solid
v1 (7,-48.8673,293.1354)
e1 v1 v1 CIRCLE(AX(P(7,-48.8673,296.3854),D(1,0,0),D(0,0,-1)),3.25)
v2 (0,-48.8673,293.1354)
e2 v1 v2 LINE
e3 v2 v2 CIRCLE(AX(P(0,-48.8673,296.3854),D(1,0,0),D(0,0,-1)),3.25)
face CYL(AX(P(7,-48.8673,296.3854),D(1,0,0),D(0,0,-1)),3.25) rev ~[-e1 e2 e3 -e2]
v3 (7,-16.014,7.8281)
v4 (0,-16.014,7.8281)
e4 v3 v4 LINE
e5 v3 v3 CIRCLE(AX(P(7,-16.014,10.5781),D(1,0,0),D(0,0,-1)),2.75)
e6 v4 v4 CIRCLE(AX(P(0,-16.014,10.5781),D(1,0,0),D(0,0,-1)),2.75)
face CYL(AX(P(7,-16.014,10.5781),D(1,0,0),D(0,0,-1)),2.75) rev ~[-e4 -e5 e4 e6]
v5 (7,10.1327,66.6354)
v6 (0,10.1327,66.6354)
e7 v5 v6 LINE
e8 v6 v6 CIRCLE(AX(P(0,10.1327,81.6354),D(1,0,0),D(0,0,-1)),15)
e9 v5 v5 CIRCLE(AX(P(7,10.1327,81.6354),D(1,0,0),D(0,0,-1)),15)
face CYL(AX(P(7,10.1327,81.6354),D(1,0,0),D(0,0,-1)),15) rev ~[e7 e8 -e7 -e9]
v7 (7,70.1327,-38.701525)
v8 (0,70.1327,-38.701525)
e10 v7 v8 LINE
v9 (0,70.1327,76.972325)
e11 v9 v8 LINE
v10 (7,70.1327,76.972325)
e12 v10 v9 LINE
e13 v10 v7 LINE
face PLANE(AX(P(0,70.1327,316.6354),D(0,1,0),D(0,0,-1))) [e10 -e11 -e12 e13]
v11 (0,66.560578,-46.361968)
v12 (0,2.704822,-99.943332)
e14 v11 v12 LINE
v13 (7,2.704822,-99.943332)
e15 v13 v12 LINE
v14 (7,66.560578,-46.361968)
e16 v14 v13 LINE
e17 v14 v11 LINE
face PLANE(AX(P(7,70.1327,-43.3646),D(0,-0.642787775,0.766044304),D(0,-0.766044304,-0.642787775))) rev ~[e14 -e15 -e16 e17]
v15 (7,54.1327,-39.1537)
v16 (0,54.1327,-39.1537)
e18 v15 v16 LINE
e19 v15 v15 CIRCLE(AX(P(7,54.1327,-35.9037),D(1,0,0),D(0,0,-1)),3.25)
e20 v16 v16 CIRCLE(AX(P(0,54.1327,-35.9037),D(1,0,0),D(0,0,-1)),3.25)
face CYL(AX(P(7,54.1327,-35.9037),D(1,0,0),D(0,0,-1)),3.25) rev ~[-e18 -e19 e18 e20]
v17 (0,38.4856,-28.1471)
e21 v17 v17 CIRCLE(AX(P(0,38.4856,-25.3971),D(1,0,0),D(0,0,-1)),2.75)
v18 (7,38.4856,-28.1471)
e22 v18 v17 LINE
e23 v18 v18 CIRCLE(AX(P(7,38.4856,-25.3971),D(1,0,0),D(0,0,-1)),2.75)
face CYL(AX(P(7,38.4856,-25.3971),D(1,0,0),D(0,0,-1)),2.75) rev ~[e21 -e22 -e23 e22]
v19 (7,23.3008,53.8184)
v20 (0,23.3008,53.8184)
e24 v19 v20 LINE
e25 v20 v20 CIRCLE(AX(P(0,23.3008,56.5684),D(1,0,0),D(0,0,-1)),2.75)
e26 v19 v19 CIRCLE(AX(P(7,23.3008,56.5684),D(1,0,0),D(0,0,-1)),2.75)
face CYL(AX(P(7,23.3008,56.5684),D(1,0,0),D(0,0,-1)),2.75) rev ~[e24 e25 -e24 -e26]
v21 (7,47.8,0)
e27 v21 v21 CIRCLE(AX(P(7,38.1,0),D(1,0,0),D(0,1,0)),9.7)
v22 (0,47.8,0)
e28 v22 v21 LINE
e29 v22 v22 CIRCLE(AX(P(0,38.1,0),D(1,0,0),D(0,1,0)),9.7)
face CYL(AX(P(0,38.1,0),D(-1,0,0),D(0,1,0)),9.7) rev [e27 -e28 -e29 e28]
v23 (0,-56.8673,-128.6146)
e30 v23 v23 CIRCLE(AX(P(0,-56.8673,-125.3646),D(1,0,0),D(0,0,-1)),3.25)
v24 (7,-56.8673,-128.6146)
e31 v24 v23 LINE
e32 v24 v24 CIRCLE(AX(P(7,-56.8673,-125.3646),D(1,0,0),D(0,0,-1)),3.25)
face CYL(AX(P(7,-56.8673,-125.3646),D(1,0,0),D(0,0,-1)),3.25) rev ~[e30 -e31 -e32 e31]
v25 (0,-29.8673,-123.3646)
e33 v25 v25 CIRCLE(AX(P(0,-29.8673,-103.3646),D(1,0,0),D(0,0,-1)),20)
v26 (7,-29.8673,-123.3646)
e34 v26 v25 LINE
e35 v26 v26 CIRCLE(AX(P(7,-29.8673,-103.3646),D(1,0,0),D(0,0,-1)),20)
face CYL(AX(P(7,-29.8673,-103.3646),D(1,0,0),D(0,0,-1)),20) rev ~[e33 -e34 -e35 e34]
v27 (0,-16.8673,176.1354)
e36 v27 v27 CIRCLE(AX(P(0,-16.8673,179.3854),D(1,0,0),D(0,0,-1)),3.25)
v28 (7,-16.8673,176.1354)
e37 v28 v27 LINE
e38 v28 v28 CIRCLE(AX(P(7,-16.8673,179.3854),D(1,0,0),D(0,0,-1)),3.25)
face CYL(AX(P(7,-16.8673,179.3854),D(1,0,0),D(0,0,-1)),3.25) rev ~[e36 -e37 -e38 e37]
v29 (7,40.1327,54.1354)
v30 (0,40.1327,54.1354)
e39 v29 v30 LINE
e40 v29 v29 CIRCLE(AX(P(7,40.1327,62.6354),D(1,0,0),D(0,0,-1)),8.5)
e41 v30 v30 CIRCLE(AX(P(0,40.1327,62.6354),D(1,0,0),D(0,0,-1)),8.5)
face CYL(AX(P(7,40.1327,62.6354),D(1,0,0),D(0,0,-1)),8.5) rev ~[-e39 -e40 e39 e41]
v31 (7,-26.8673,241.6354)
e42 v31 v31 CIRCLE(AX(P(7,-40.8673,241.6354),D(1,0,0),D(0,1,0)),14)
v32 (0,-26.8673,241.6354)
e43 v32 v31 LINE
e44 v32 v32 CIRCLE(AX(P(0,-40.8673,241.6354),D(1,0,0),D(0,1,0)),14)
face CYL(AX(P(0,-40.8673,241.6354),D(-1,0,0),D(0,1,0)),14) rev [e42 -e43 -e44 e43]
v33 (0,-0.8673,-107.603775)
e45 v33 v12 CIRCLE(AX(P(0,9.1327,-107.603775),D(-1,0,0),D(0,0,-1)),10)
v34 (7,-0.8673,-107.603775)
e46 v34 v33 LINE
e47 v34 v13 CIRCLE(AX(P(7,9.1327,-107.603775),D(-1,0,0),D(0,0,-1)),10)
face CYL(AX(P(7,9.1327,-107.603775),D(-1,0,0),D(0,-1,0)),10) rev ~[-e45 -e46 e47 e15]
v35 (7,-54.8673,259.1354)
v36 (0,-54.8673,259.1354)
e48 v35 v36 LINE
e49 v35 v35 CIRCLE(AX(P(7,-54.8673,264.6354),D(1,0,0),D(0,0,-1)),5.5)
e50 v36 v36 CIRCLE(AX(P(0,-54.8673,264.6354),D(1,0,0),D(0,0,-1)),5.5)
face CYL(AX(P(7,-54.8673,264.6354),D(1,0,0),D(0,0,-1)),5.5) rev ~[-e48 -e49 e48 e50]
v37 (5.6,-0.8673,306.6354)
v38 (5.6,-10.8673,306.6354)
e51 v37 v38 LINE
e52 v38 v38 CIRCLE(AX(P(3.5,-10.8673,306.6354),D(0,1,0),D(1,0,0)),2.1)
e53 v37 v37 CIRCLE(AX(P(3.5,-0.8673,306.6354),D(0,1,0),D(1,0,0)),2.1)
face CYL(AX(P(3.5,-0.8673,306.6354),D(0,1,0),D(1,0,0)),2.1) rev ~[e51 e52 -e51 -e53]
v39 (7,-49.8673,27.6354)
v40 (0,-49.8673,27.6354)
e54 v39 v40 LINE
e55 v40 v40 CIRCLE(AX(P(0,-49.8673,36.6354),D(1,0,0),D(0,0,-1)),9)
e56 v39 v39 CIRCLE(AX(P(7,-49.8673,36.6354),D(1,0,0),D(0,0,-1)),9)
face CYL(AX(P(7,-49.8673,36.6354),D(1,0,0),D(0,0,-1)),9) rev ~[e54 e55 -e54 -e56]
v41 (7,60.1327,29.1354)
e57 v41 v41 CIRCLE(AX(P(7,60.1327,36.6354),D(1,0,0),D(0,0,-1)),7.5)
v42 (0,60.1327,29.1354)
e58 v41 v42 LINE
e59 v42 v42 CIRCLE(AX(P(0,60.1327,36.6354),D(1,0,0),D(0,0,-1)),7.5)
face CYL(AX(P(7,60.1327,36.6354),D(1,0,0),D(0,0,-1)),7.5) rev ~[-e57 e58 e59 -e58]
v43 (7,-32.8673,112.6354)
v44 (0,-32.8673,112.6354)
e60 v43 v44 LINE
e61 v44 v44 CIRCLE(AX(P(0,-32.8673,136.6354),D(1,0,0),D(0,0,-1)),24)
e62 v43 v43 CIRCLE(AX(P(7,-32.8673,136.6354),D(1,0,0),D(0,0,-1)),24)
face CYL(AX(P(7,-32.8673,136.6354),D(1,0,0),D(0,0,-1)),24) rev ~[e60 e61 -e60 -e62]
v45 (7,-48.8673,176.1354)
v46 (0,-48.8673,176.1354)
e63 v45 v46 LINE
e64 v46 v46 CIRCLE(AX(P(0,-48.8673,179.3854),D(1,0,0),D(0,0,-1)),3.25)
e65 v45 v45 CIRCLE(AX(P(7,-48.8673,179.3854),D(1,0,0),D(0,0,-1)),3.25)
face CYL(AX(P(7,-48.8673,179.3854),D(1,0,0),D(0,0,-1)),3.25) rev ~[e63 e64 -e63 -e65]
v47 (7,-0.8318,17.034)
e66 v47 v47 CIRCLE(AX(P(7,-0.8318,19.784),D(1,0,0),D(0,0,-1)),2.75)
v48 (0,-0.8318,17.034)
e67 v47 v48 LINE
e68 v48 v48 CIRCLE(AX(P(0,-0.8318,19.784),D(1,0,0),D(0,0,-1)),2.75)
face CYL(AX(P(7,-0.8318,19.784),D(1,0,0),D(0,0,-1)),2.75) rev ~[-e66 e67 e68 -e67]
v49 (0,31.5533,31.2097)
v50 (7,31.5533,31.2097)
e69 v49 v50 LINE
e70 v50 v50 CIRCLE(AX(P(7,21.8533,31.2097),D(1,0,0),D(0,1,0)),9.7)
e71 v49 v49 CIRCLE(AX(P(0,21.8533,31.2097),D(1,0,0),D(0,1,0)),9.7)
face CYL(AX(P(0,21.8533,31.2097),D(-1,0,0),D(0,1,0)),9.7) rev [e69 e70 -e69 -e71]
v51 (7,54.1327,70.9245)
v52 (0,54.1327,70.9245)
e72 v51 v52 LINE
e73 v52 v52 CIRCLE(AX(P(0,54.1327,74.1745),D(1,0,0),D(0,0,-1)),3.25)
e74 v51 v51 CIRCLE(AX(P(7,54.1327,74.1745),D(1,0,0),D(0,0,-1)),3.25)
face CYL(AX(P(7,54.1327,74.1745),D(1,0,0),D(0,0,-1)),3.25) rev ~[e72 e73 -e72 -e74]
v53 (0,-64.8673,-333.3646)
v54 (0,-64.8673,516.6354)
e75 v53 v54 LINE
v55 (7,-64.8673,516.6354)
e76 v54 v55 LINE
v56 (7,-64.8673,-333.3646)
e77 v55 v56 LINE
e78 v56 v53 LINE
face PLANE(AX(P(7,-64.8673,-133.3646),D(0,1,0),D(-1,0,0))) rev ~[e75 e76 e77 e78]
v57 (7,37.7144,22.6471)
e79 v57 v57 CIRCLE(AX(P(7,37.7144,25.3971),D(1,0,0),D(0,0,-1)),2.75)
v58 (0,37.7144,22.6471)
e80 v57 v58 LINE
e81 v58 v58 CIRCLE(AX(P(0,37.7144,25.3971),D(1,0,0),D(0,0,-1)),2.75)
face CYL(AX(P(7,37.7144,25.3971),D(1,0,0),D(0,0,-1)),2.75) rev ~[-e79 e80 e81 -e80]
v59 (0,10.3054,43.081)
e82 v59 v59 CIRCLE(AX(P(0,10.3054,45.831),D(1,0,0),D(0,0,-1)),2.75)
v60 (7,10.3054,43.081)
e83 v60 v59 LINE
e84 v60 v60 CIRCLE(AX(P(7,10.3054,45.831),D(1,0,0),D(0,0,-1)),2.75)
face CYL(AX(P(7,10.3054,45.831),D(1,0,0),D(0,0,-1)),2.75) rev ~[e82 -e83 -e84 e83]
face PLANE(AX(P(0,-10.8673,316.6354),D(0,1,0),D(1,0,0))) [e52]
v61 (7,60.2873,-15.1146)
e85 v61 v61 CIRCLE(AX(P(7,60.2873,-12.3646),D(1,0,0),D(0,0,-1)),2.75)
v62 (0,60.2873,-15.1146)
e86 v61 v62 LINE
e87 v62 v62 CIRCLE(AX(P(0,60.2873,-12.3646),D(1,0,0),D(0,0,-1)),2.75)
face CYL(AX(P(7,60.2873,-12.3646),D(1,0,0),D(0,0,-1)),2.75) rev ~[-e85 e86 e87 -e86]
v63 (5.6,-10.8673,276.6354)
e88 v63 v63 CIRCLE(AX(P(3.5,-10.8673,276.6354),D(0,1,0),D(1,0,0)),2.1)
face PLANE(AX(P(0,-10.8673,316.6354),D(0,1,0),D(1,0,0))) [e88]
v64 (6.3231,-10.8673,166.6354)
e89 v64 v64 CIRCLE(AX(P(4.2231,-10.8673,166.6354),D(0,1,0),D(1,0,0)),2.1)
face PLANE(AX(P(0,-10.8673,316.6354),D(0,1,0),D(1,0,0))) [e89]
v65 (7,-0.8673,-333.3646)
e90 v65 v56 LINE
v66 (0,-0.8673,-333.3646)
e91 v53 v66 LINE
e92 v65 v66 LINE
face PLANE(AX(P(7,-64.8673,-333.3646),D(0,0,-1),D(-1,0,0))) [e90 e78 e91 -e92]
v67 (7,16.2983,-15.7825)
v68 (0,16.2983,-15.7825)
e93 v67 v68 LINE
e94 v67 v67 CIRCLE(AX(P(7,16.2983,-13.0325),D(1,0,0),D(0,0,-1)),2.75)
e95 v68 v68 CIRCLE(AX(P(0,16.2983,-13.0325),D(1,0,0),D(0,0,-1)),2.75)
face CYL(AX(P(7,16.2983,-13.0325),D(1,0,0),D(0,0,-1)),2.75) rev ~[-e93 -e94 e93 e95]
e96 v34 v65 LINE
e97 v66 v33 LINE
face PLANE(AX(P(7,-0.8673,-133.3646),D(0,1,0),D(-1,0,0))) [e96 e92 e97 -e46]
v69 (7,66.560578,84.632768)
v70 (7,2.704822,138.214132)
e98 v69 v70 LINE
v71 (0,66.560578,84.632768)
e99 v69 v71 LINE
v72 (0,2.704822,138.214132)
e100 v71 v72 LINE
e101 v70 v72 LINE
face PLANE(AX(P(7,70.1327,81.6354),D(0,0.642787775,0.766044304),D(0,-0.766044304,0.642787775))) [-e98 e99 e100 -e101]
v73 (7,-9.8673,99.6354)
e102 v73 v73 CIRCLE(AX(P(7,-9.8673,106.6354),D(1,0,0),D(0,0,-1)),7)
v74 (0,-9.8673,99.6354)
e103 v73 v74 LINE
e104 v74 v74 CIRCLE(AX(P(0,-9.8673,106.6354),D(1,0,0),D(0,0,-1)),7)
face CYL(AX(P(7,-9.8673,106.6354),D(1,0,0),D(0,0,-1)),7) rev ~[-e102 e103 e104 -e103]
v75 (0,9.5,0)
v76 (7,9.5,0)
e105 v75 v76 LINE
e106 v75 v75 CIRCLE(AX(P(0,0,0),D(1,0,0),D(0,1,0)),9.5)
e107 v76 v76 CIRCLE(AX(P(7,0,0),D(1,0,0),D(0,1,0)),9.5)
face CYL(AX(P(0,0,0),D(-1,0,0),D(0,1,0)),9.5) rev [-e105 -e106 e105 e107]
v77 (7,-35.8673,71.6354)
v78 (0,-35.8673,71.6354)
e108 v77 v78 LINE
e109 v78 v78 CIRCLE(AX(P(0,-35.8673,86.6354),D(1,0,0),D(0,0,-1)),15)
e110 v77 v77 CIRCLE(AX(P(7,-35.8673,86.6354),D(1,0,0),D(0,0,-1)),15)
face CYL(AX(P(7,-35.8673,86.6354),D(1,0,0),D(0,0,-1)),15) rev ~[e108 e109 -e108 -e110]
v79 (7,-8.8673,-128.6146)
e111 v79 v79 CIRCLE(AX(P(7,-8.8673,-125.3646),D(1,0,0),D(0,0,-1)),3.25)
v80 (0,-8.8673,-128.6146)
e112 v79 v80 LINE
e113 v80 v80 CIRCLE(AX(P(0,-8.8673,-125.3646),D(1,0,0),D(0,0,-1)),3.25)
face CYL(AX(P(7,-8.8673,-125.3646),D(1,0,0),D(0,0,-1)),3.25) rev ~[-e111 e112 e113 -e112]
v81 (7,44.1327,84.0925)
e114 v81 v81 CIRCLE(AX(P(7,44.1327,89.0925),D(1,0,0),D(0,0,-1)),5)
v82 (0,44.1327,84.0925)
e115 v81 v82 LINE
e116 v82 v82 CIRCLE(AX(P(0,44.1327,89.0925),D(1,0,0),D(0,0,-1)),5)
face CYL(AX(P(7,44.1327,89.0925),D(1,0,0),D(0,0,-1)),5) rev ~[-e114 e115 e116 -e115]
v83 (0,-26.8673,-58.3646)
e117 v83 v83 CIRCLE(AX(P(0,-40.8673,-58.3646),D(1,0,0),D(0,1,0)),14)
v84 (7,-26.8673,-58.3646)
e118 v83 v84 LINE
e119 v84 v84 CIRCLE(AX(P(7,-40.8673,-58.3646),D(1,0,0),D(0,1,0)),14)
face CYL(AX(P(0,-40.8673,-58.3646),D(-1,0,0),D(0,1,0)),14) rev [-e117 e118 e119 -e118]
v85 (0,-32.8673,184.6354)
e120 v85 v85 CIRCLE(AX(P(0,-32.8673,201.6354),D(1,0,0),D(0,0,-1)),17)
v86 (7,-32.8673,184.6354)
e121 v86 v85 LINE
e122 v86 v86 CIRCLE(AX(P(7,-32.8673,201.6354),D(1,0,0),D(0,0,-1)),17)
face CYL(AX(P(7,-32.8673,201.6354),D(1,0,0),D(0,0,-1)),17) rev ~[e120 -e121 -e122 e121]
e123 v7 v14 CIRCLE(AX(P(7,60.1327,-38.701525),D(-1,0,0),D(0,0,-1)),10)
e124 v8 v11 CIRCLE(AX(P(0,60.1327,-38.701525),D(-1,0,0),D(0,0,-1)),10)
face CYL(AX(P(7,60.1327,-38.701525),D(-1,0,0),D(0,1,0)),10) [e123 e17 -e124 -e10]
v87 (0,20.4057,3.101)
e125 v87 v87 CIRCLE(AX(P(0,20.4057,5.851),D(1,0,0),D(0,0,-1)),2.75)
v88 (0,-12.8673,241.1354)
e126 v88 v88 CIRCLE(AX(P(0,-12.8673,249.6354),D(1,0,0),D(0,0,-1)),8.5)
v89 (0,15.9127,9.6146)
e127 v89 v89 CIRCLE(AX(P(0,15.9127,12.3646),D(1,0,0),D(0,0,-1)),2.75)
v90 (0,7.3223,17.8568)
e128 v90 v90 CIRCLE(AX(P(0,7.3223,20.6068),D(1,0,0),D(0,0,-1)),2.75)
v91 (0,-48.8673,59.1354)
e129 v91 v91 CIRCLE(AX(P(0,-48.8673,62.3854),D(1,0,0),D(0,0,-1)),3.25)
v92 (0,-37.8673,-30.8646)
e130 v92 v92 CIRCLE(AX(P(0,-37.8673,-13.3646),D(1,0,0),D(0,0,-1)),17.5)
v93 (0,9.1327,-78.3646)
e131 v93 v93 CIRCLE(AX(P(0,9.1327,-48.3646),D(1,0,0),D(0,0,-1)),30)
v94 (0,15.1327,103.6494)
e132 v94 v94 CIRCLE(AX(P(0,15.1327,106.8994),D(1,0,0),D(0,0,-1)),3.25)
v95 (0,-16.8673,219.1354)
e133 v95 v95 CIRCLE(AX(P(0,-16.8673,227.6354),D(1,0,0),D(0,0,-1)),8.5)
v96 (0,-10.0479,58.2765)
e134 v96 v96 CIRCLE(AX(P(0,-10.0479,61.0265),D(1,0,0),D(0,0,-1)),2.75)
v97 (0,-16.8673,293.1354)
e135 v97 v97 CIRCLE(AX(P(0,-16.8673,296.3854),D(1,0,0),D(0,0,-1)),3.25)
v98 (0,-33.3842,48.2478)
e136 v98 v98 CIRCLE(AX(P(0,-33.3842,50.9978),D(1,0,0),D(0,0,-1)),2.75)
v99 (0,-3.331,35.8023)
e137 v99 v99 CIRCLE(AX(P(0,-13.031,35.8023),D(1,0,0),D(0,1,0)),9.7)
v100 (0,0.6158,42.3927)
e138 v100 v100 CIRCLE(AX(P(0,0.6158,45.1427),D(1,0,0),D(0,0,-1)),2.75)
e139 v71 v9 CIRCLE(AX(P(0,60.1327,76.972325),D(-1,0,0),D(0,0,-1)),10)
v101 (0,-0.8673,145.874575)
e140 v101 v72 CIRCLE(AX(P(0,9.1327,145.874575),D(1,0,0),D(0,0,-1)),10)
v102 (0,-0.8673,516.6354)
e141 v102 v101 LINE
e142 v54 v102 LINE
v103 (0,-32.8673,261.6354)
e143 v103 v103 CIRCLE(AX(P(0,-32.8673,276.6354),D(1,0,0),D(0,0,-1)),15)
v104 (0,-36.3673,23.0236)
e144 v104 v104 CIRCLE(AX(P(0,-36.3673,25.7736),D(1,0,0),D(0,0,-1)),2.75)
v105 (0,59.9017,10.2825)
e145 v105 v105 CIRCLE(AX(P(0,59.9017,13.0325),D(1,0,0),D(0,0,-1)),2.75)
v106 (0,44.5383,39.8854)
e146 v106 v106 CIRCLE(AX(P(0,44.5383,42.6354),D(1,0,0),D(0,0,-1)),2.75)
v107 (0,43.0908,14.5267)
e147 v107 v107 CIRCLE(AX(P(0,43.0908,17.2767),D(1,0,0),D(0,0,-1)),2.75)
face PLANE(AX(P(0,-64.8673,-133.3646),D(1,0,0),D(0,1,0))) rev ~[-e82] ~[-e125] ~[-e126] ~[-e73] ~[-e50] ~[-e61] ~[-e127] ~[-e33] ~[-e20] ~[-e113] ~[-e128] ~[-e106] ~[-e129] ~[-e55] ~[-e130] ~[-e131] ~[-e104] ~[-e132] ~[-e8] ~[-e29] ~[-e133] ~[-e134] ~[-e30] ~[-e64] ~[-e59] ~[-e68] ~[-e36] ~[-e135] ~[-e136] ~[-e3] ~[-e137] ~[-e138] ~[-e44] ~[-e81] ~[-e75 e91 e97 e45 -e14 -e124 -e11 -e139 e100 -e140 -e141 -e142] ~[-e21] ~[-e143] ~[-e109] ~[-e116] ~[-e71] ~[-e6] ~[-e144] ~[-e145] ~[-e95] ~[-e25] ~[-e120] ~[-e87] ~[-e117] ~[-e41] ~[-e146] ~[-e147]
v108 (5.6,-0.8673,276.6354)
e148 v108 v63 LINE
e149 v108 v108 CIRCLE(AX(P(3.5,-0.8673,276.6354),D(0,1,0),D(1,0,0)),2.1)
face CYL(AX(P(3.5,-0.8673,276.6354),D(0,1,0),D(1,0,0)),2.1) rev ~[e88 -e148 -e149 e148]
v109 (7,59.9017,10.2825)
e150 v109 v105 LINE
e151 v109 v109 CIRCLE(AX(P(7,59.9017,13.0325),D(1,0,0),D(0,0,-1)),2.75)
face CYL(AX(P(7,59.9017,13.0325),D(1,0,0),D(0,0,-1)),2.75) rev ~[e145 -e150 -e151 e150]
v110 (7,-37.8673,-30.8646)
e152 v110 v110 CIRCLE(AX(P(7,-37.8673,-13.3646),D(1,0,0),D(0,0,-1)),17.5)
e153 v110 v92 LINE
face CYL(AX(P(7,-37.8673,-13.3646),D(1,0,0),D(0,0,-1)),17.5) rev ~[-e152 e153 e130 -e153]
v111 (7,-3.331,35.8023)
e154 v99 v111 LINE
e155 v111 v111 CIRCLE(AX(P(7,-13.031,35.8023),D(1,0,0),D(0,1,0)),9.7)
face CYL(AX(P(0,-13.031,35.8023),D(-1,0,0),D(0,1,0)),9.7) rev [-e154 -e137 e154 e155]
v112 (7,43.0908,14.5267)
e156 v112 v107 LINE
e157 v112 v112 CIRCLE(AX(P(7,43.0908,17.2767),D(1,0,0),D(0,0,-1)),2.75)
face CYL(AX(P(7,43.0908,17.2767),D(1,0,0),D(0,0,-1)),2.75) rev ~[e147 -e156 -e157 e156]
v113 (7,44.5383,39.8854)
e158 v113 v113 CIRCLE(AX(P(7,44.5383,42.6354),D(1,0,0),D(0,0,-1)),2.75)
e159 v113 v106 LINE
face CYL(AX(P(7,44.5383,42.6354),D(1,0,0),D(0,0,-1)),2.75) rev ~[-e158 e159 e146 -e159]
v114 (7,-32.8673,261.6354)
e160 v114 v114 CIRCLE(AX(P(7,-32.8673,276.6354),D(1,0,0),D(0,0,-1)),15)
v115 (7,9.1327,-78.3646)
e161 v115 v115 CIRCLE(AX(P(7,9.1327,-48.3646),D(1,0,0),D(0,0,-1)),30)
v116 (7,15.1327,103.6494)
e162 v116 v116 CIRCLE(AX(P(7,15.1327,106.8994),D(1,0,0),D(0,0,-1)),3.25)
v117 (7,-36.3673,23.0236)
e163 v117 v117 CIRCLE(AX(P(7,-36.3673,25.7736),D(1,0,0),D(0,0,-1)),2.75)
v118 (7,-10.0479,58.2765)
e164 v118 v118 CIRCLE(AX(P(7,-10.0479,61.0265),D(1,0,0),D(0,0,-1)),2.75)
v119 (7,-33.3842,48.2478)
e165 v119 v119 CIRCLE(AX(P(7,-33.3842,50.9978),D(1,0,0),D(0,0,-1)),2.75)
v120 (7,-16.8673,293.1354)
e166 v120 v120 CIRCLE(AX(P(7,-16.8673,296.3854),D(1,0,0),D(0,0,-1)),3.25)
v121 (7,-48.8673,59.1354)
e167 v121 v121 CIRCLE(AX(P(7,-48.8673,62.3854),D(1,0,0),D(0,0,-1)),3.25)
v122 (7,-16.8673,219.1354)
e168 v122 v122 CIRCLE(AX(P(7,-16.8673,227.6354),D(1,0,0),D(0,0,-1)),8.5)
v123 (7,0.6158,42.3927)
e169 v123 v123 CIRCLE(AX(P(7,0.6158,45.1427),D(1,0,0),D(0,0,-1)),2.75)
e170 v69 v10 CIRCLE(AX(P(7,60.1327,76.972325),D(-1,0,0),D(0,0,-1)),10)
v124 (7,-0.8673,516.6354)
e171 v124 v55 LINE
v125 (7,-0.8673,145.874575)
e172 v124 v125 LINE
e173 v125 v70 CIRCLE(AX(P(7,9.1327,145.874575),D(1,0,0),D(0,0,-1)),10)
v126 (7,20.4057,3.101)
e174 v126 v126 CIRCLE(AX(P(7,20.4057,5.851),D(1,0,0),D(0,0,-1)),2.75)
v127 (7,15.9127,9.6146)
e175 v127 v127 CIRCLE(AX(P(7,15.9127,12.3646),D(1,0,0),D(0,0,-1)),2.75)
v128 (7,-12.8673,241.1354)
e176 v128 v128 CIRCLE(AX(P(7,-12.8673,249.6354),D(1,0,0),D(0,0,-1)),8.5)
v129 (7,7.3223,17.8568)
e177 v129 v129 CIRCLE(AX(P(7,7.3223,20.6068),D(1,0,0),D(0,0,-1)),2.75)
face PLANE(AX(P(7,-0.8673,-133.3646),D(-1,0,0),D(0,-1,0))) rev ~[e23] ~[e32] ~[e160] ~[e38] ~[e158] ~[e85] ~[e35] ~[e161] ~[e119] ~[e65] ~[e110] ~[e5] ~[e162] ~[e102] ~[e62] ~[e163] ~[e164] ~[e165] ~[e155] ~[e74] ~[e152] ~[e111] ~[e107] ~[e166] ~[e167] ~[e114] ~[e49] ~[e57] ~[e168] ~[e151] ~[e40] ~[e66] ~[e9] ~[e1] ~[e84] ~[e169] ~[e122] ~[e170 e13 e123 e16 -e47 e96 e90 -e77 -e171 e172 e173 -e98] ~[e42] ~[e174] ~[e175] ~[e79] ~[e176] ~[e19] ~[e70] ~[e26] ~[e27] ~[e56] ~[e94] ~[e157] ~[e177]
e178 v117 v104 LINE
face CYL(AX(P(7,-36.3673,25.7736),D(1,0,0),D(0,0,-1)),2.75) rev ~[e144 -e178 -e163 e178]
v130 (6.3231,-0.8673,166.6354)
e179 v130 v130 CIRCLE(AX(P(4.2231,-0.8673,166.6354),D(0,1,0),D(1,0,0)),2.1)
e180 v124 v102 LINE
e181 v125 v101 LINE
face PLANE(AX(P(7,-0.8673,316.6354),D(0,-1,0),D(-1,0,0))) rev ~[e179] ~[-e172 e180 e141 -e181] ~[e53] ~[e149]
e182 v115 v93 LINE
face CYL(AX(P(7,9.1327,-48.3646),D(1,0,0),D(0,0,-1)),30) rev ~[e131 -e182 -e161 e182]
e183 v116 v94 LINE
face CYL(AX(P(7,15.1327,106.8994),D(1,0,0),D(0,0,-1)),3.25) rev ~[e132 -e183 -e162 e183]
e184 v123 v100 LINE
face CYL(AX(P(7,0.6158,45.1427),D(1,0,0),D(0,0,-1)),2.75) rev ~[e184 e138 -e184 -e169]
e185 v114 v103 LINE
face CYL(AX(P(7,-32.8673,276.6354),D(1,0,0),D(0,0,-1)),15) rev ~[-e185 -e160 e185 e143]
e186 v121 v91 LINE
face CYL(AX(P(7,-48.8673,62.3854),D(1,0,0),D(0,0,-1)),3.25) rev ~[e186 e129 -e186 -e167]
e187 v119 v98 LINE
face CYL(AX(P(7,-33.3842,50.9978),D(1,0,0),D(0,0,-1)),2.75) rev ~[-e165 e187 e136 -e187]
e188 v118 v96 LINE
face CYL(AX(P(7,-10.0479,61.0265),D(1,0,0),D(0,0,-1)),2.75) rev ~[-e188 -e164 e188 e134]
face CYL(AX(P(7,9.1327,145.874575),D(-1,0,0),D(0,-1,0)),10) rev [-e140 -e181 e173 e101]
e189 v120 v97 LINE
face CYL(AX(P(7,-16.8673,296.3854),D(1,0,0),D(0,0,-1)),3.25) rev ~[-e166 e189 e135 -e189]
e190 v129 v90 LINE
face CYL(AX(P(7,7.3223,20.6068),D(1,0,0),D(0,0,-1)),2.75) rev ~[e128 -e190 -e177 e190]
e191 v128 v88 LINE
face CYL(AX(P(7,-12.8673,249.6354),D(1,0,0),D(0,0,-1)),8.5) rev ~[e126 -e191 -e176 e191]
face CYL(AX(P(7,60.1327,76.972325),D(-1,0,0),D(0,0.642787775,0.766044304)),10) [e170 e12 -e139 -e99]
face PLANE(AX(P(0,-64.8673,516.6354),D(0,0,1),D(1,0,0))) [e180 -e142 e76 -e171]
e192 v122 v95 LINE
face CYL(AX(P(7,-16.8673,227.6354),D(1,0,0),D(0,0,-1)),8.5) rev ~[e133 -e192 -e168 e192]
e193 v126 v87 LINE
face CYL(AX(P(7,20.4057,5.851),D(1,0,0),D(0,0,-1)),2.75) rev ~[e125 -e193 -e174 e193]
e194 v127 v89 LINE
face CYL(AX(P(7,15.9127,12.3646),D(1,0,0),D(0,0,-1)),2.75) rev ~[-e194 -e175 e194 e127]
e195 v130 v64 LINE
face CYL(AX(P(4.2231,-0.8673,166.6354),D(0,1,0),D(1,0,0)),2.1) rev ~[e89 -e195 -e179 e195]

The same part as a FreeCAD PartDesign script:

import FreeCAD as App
import Part
import Sketcher
from FreeCAD import Vector
Q = App.Units.Quantity


def edges_at(feature, points):
    """Names of the edges that pass closest to the given points."""
    edges = feature.Shape.Edges
    near = lambda p: min(range(len(edges)), key=lambda i: edges[i].distToShape(Part.Vertex(*p))[0])
    return sorted({f"Edge{near(p) + 1}" for p in points})

doc = App.newDocument("Part")
body = doc.addObject("PartDesign::Body", "Body")

# Sketch on YZ plane
sketch1 = doc.addObject("Sketcher::SketchObject", "Sketch")
body.addObject(sketch1)
sketch1.AttachmentSupport = (doc.YZ_Plane, [""])
sketch1.MapMode = "FlatFace"
sketch1.addGeometry([
    Part.LineSegment(Vector(70.1327, 316.6354, 0), Vector(-64.8673, 316.6354, 0)),  # 0
    Part.LineSegment(Vector(-64.8673, 316.6354, 0), Vector(-64.8673, -133.3646, 0)),  # 1
    Part.LineSegment(Vector(-64.8673, -133.3646, 0), Vector(70.1327, -133.3646, 0)),  # 2
    Part.LineSegment(Vector(70.1327, -133.3646, 0), Vector(70.1327, 316.6354, 0)),  # 3
    Part.Circle(Vector(-40.8673, -58.3646, 0), Vector(0, 0, 1), 14),  # 4
    Part.Circle(Vector(0, 0, 0), Vector(0, 0, 1), 9.5),  # 5
    Part.Circle(Vector(-13.031, 35.8023, 0), Vector(0, 0, 1), 9.7),  # 6
    Part.Circle(Vector(21.8533, 31.2097, 0), Vector(0, 0, 1), 9.7),  # 7
    Part.Circle(Vector(38.1, 0, 0), Vector(0, 0, 1), 9.7),  # 8
    Part.Circle(Vector(-40.8673, 241.6354, 0), Vector(0, 0, 1), 14),  # 9
], False)
sketch1.addConstraint([
    Sketcher.Constraint("Coincident", 0, 2, 1, 1),
    Sketcher.Constraint("Coincident", 1, 2, 2, 1),
    Sketcher.Constraint("Coincident", 2, 2, 3, 1),
    Sketcher.Constraint("Coincident", 3, 2, 0, 1),
    Sketcher.Constraint("Horizontal", 0),
    Sketcher.Constraint("Vertical", 1),
    Sketcher.Constraint("Horizontal", 2),
    Sketcher.Constraint("Vertical", 3),
    Sketcher.Constraint("Coincident", 5, 3, -1, 1),
    Sketcher.Constraint("Equal", 6, 7),
    Sketcher.Constraint("Equal", 7, 8),
    Sketcher.Constraint("Equal", 4, 9),
    Sketcher.Constraint("PointOnObject", 8, 3, -1),
    Sketcher.Constraint("Vertical", 4, 3, 9, 3),
    Sketcher.Constraint("Diameter", 4, Q("28 mm")),
    Sketcher.Constraint("Diameter", 5, Q("19 mm")),
    Sketcher.Constraint("Diameter", 6, Q("19.4 mm")),
    Sketcher.Constraint("DistanceX", 0, 2, 0, 1, Q("135 mm")),
    Sketcher.Constraint("DistanceY", 1, 2, 1, 1, Q("450 mm")),
    Sketcher.Constraint("DistanceY", 4, 3, 9, 3, Q("300 mm")),
    Sketcher.Constraint("DistanceX", 0, 2, 9, 3, Q("24 mm")),
    Sketcher.Constraint("DistanceY", 9, 3, 0, 2, Q("75 mm")),
    Sketcher.Constraint("DistanceX", -1, 1, 8, 3, Q("38.1 mm")),
    Sketcher.Constraint("DistanceX", 6, 3, -1, 1, Q("13.031 mm")),
    Sketcher.Constraint("DistanceY", 4, 3, 6, 3, Q("94.167 mm")),
    Sketcher.Constraint("DistanceX", 4, 3, -1, 1, Q("40.8673 mm")),
    Sketcher.Constraint("DistanceY", 4, 3, -1, 1, Q("58.3646 mm")),
    Sketcher.Constraint("DistanceX", -1, 1, 7, 3, Q("21.8533 mm")),
    Sketcher.Constraint("DistanceY", -1, 1, 7, 3, Q("31.2097 mm")),
])
pad1 = doc.addObject("PartDesign::Pad", "Pad")
body.addObject(pad1)
pad1.Profile = sketch1
pad1.Length = 7

# Sketch on YZ plane
sketch2 = doc.addObject("Sketcher::SketchObject", "Sketch001")
body.addObject(sketch2)
sketch2.AttachmentSupport = (doc.YZ_Plane, [""])
sketch2.MapMode = "FlatFace"
sketch2.AttachmentOffset = App.Placement(Vector(0, 0, 7), App.Rotation())
sketch2.addGeometry([
    Part.LineSegment(Vector(70.1327, -133.3646, 0), Vector(70.1327, -43.3646, 0)),  # 0
    Part.LineSegment(Vector(70.1327, -43.3646, 0), Vector(-0.8673, -102.9407, 0)),  # 1
    Part.LineSegment(Vector(-0.8673, -102.9407, 0), Vector(-0.8673, -133.3646, 0)),  # 2
    Part.LineSegment(Vector(-0.8673, -133.3646, 0), Vector(70.1327, -133.3646, 0)),  # 3
    Part.LineSegment(Vector(70.1327, 81.6354, 0), Vector(70.1327, 316.6354, 0)),  # 4
    Part.LineSegment(Vector(70.1327, 316.6354, 0), Vector(-0.8673, 316.6354, 0)),  # 5
    Part.LineSegment(Vector(-0.8673, 316.6354, 0), Vector(-0.8673, 141.2115, 0)),  # 6
    Part.LineSegment(Vector(-0.8673, 141.2115, 0), Vector(70.1327, 81.6354, 0)),  # 7
], False)
sketch2.addConstraint([
    Sketcher.Constraint("Coincident", 0, 2, 1, 1),
    Sketcher.Constraint("Coincident", 1, 2, 2, 1),
    Sketcher.Constraint("Coincident", 2, 2, 3, 1),
    Sketcher.Constraint("Coincident", 3, 2, 0, 1),
    Sketcher.Constraint("Coincident", 4, 2, 5, 1),
    Sketcher.Constraint("Coincident", 5, 2, 6, 1),
    Sketcher.Constraint("Coincident", 6, 2, 7, 1),
    Sketcher.Constraint("Coincident", 7, 2, 4, 1),
    Sketcher.Constraint("Vertical", 0),
    Sketcher.Constraint("Vertical", 2),
    Sketcher.Constraint("Horizontal", 3),
    Sketcher.Constraint("Vertical", 4),
    Sketcher.Constraint("Horizontal", 5),
    Sketcher.Constraint("Vertical", 6),
    Sketcher.Constraint("Vertical", 3, 2, 4, 2),
    Sketcher.Constraint("Vertical", 2, 2, 5, 2),
    Sketcher.Constraint("Equal", 1, 7),
    Sketcher.Constraint("DistanceX", 3, 1, 3, 2, Q("71 mm")),
    Sketcher.Constraint("DistanceY", 0, 1, 0, 2, Q("90 mm")),
    Sketcher.Constraint("Angle", 7, Q("-40 deg")),
    Sketcher.Constraint("DistanceY", 0, 2, 7, 2, Q("125 mm")),
    Sketcher.Constraint("DistanceY", 4, 1, 4, 2, Q("235 mm")),
    Sketcher.Constraint("DistanceX", -1, 1, 0, 2, Q("70.1327 mm")),
    Sketcher.Constraint("DistanceY", 0, 2, -1, 1, Q("43.3646 mm")),
])
pocket1 = doc.addObject("PartDesign::Pocket", "Pocket")
body.addObject(pocket1)
pocket1.Profile = sketch2
pocket1.Length = 7

# Sketch on YZ plane
sketch3 = doc.addObject("Sketcher::SketchObject", "Sketch002")
body.addObject(sketch3)
sketch3.AttachmentSupport = (doc.YZ_Plane, [""])
sketch3.MapMode = "FlatFace"
sketch3.AttachmentOffset = App.Placement(Vector(0, 0, 7), App.Rotation())
sketch3.addGeometry([
    Part.Circle(Vector(15.1327, 106.8994, 0), Vector(0, 0, 1), 3.25),  # 0
    Part.Circle(Vector(54.1327, -35.9037, 0), Vector(0, 0, 1), 3.25),  # 1
    Part.Circle(Vector(-16.8673, 296.3854, 0), Vector(0, 0, 1), 3.25),  # 2
    Part.Circle(Vector(-48.8673, 296.3854, 0), Vector(0, 0, 1), 3.25),  # 3
    Part.Circle(Vector(54.1327, 74.1745, 0), Vector(0, 0, 1), 3.25),  # 4
    Part.Circle(Vector(-16.8673, 179.3854, 0), Vector(0, 0, 1), 3.25),  # 5
    Part.Circle(Vector(-48.8673, 179.3854, 0), Vector(0, 0, 1), 3.25),  # 6
    Part.Circle(Vector(-48.8673, 62.3854, 0), Vector(0, 0, 1), 3.25),  # 7
    Part.Circle(Vector(-56.8673, -125.3646, 0), Vector(0, 0, 1), 3.25),  # 8
    Part.Circle(Vector(-8.8673, -125.3646, 0), Vector(0, 0, 1), 3.25),  # 9
    Part.Circle(Vector(60.2873, -12.3646, 0), Vector(0, 0, 1), 2.75),  # 10
    Part.Circle(Vector(59.9017, 13.0325, 0), Vector(0, 0, 1), 2.75),  # 11
    Part.Circle(Vector(37.7144, 25.3971, 0), Vector(0, 0, 1), 2.75),  # 12
    Part.Circle(Vector(15.9127, 12.3646, 0), Vector(0, 0, 1), 2.75),  # 13
    Part.Circle(Vector(16.2983, -13.0325, 0), Vector(0, 0, 1), 2.75),  # 14
    Part.Circle(Vector(38.4856, -25.3971, 0), Vector(0, 0, 1), 2.75),  # 15
    Part.Circle(Vector(44.5383, 42.6354, 0), Vector(0, 0, 1), 2.75),  # 16
    Part.Circle(Vector(23.3008, 56.5684, 0), Vector(0, 0, 1), 2.75),  # 17
    Part.Circle(Vector(0.6158, 45.1427, 0), Vector(0, 0, 1), 2.75),  # 18
    Part.Circle(Vector(-0.8318, 19.784, 0), Vector(0, 0, 1), 2.75),  # 19
    Part.Circle(Vector(20.4057, 5.851, 0), Vector(0, 0, 1), 2.75),  # 20
    Part.Circle(Vector(43.0908, 17.2767, 0), Vector(0, 0, 1), 2.75),  # 21
    Part.Circle(Vector(-36.3673, 25.7736, 0), Vector(0, 0, 1), 2.75),  # 22
    Part.Circle(Vector(-16.014, 10.5781, 0), Vector(0, 0, 1), 2.75),  # 23
    Part.Circle(Vector(7.3223, 20.6068, 0), Vector(0, 0, 1), 2.75),  # 24
    Part.Circle(Vector(10.3054, 45.831, 0), Vector(0, 0, 1), 2.75),  # 25
    Part.Circle(Vector(-10.0479, 61.0265, 0), Vector(0, 0, 1), 2.75),  # 26
    Part.Circle(Vector(-33.3842, 50.9978, 0), Vector(0, 0, 1), 2.75),  # 27
], False)
sketch3.addConstraint([
    Sketcher.Constraint("Equal", 0, 1),
    Sketcher.Constraint("Equal", 1, 2),
    Sketcher.Constraint("Equal", 2, 3),
    Sketcher.Constraint("Equal", 3, 4),
    Sketcher.Constraint("Equal", 4, 5),
    Sketcher.Constraint("Equal", 5, 6),
    Sketcher.Constraint("Equal", 6, 7),
    Sketcher.Constraint("Equal", 7, 8),
    Sketcher.Constraint("Equal", 8, 9),
    Sketcher.Constraint("Equal", 10, 11),
    Sketcher.Constraint("Equal", 11, 12),
    Sketcher.Constraint("Equal", 12, 13),
    Sketcher.Constraint("Equal", 13, 14),
    Sketcher.Constraint("Equal", 14, 15),
    Sketcher.Constraint("Equal", 15, 16),
    Sketcher.Constraint("Equal", 16, 17),
    Sketcher.Constraint("Equal", 17, 18),
    Sketcher.Constraint("Equal", 18, 19),
    Sketcher.Constraint("Equal", 19, 20),
    Sketcher.Constraint("Equal", 20, 21),
    Sketcher.Constraint("Equal", 21, 22),
    Sketcher.Constraint("Equal", 22, 23),
    Sketcher.Constraint("Equal", 23, 24),
    Sketcher.Constraint("Equal", 24, 25),
    Sketcher.Constraint("Equal", 25, 26),
    Sketcher.Constraint("Equal", 26, 27),
    Sketcher.Constraint("Horizontal", 2, 3, 3, 3),
    Sketcher.Constraint("Horizontal", 5, 3, 6, 3),
    Sketcher.Constraint("Horizontal", 8, 3, 9, 3),
    Sketcher.Constraint("Vertical", 1, 3, 4, 3),
    Sketcher.Constraint("Vertical", 2, 3, 5, 3),
    Sketcher.Constraint("Vertical", 3, 3, 6, 3),
    Sketcher.Constraint("Vertical", 6, 3, 7, 3),
    Sketcher.Constraint("Diameter", 0, Q("6.5 mm")),
    Sketcher.Constraint("Diameter", 10, Q("5.5 mm")),
    Sketcher.Constraint("DistanceX", 0, 3, 1, 3, Q("39 mm")),
    Sketcher.Constraint("DistanceX", 2, 3, 1, 3, Q("71 mm")),
    Sketcher.Constraint("DistanceX", 8, 3, 7, 3, Q("8 mm")),
    Sketcher.Constraint("DistanceX", 3, 3, 2, 3, Q("32 mm")),
    Sketcher.Constraint("DistanceY", 5, 3, 2, 3, Q("117 mm")),
    Sketcher.Constraint("DistanceY", 7, 3, 6, 3, Q("117 mm")),
    Sketcher.Constraint("DistanceX", 8, 3, 9, 3, Q("48 mm")),
    Sketcher.Constraint("DistanceY", 9, 3, 10, 3, Q("113 mm")),
    Sketcher.Constraint("DistanceY", 10, 3, 16, 3, Q("55 mm")),
    Sketcher.Constraint("DistanceX", 27, 3, 18, 3, Q("34 mm")),
    Sketcher.Constraint("DistanceX", 7, 3, 22, 3, Q("12.5 mm")),
    Sketcher.Constraint("DistanceY", 8, 3, 7, 3, Q("187.75 mm")),
    Sketcher.Constraint("DistanceX", 13, 3, 1, 3, Q("38.22 mm")),
    Sketcher.Constraint("DistanceY", 13, 3, 4, 3, Q("61.81 mm")),
    Sketcher.Constraint("DistanceX", 19, 3, 14, 3, Q("17.13 mm")),
    Sketcher.Constraint("DistanceX", 20, 3, 15, 3, Q("18.08 mm")),
    Sketcher.Constraint("DistanceY", -1, 1, 12, 3, Q("25.397 mm")),
    Sketcher.Constraint("DistanceY", 15, 3, -1, 1, Q("25.397 mm")),
    Sketcher.Constraint("DistanceY", -1, 1, 19, 3, Q("19.784 mm")),
    Sketcher.Constraint("DistanceY", -1, 1, 20, 3, Q("5.851 mm")),
    Sketcher.Constraint("DistanceX", 23, 3, -1, 1, Q("16.014 mm")),
    Sketcher.Constraint("DistanceY", -1, 1, 23, 3, Q("10.578 mm")),
    Sketcher.Constraint("DistanceY", -1, 1, 25, 3, Q("45.831 mm")),
    Sketcher.Constraint("DistanceX", 26, 3, -1, 1, Q("10.048 mm")),
    Sketcher.Constraint("DistanceY", 1, 3, 0, 3, Q("142.803 mm")),
    Sketcher.Constraint("DistanceY", 0, 3, 2, 3, Q("189.486 mm")),
    Sketcher.Constraint("DistanceY", 4, 3, 0, 3, Q("32.725 mm")),
    Sketcher.Constraint("DistanceY", 10, 3, 11, 3, Q("25.397 mm")),
    Sketcher.Constraint("DistanceX", 1, 3, 11, 3, Q("5.769 mm")),
    Sketcher.Constraint("DistanceX", 12, 3, 10, 3, Q("22.573 mm")),
    Sketcher.Constraint("DistanceY", 14, 3, 13, 3, Q("25.397 mm")),
    Sketcher.Constraint("DistanceX", 14, 3, 10, 3, Q("43.989 mm")),
    Sketcher.Constraint("DistanceX", 15, 3, 1, 3, Q("15.647 mm")),
    Sketcher.Constraint("DistanceX", 12, 3, 16, 3, Q("6.824 mm")),
    Sketcher.Constraint("DistanceY", 16, 3, 17, 3, Q("13.933 mm")),
    Sketcher.Constraint("DistanceX", 17, 3, 4, 3, Q("30.832 mm")),
    Sketcher.Constraint("DistanceX", 18, 3, 17, 3, Q("22.685 mm")),
    Sketcher.Constraint("DistanceY", 13, 3, 18, 3, Q("32.778 mm")),
    Sketcher.Constraint("DistanceX", 21, 3, 11, 3, Q("16.811 mm")),
    Sketcher.Constraint("DistanceY", 13, 3, 21, 3, Q("4.912 mm")),
    Sketcher.Constraint("DistanceY", 22, 3, 18, 3, Q("19.369 mm")),
    Sketcher.Constraint("DistanceX", 19, 3, 24, 3, Q("8.154 mm")),
    Sketcher.Constraint("DistanceY", 24, 3, 18, 3, Q("24.536 mm")),
    Sketcher.Constraint("DistanceX", 24, 3, 25, 3, Q("2.983 mm")),
    Sketcher.Constraint("DistanceY", 17, 3, 26, 3, Q("4.458 mm")),
    Sketcher.Constraint("DistanceX", 26, 3, 19, 3, Q("9.216 mm")),
    Sketcher.Constraint("DistanceY", 18, 3, 27, 3, Q("5.855 mm")),
    Sketcher.Constraint("DistanceX", -1, 1, 0, 3, Q("15.1327 mm")),
    Sketcher.Constraint("DistanceY", -1, 1, 0, 3, Q("106.8994 mm")),
])
pocket2 = doc.addObject("PartDesign::Pocket", "Pocket001")
body.addObject(pocket2)
pocket2.Profile = sketch3
pocket2.Length = 7

# Sketch on YZ plane
sketch4 = doc.addObject("Sketcher::SketchObject", "Sketch003")
body.addObject(sketch4)
sketch4.AttachmentSupport = (doc.YZ_Plane, [""])
sketch4.MapMode = "FlatFace"
sketch4.AttachmentOffset = App.Placement(Vector(0, 0, 7), App.Rotation())
sketch4.addGeometry([
    Part.Circle(Vector(10.1327, 81.6354, 0), Vector(0, 0, 1), 15),  # 0
    Part.Circle(Vector(9.1327, -48.3646, 0), Vector(0, 0, 1), 30),  # 1
    Part.Circle(Vector(-29.8673, -103.3646, 0), Vector(0, 0, 1), 20),  # 2
    Part.Circle(Vector(-37.8673, -13.3646, 0), Vector(0, 0, 1), 17.5),  # 3
    Part.Circle(Vector(-32.8673, 136.6354, 0), Vector(0, 0, 1), 24),  # 4
    Part.Circle(Vector(-35.8673, 86.6354, 0), Vector(0, 0, 1), 15),  # 5
    Part.Circle(Vector(-32.8673, 201.6354, 0), Vector(0, 0, 1), 17),  # 6
    Part.Circle(Vector(-32.8673, 276.6354, 0), Vector(0, 0, 1), 15),  # 7
    Part.Circle(Vector(-12.8673, 249.6354, 0), Vector(0, 0, 1), 8.5),  # 8
    Part.Circle(Vector(-16.8673, 227.6354, 0), Vector(0, 0, 1), 8.5),  # 9
    Part.Circle(Vector(44.1327, 89.0925, 0), Vector(0, 0, 1), 5),  # 10
    Part.Circle(Vector(-54.8673, 264.6354, 0), Vector(0, 0, 1), 5.5),  # 11
    Part.Circle(Vector(-9.8673, 106.6354, 0), Vector(0, 0, 1), 7),  # 12
    Part.Circle(Vector(60.1327, 36.6354, 0), Vector(0, 0, 1), 7.5),  # 13
    Part.Circle(Vector(40.1327, 62.6354, 0), Vector(0, 0, 1), 8.5),  # 14
    Part.Circle(Vector(-49.8673, 36.6354, 0), Vector(0, 0, 1), 9),  # 15
], False)
sketch4.addConstraint([
    Sketcher.Constraint("Equal", 0, 5),
    Sketcher.Constraint("Equal", 5, 7),
    Sketcher.Constraint("Equal", 8, 9),
    Sketcher.Constraint("Equal", 9, 14),
    Sketcher.Constraint("Horizontal", 13, 3, 15, 3),
    Sketcher.Constraint("Vertical", 4, 3, 6, 3),
    Sketcher.Constraint("Vertical", 6, 3, 7, 3),
    Sketcher.Constraint("Diameter", 0, Q("30 mm")),
    Sketcher.Constraint("Diameter", 1, Q("60 mm")),
    Sketcher.Constraint("Diameter", 2, Q("40 mm")),
    Sketcher.Constraint("Diameter", 3, Q("35 mm")),
    Sketcher.Constraint("Diameter", 4, Q("48 mm")),
    Sketcher.Constraint("Diameter", 6, Q("34 mm")),
    Sketcher.Constraint("Diameter", 8, Q("17 mm")),
    Sketcher.Constraint("Diameter", 10, Q("10 mm")),
    Sketcher.Constraint("Diameter", 11, Q("11 mm")),
    Sketcher.Constraint("Diameter", 12, Q("14 mm")),
    Sketcher.Constraint("Diameter", 13, Q("15 mm")),
    Sketcher.Constraint("Diameter", 15, Q("18 mm")),
    Sketcher.Constraint("DistanceY", 2, 3, 1, 3, Q("55 mm")),
    Sketcher.Constraint("DistanceX", 2, 3, 0, 3, Q("40 mm")),
    Sketcher.Constraint("DistanceY", 1, 3, 3, 3, Q("35 mm")),
    Sketcher.Constraint("DistanceX", 3, 3, 0, 3, Q("48 mm")),
    Sketcher.Constraint("DistanceY", 0, 3, 4, 3, Q("55 mm")),
    Sketcher.Constraint("DistanceX", 5, 3, 1, 3, Q("45 mm")),
    Sketcher.Constraint("DistanceY", 5, 3, 6, 3, Q("115 mm")),
    Sketcher.Constraint("DistanceY", 0, 3, 6, 3, Q("120 mm")),
    Sketcher.Constraint("DistanceY", 3, 3, 6, 3, Q("215 mm")),
    Sketcher.Constraint("DistanceY", 8, 3, 7, 3, Q("27 mm")),
    Sketcher.Constraint("DistanceY", 6, 3, 8, 3, Q("48 mm")),
    Sketcher.Constraint("DistanceX", 6, 3, 9, 3, Q("16 mm")),
    Sketcher.Constraint("DistanceY", 6, 3, 9, 3, Q("26 mm")),
    Sketcher.Constraint("DistanceX", 5, 3, 9, 3, Q("19 mm")),
    Sketcher.Constraint("DistanceX", 0, 3, 10, 3, Q("34 mm")),
    Sketcher.Constraint("DistanceY", 11, 3, 7, 3, Q("12 mm")),
    Sketcher.Constraint("DistanceX", 5, 3, 12, 3, Q("26 mm")),
    Sketcher.Constraint("DistanceY", 12, 3, 4, 3, Q("30 mm")),
    Sketcher.Constraint("DistanceX", 10, 3, 13, 3, Q("16 mm")),
    Sketcher.Constraint("DistanceY", 13, 3, 0, 3, Q("45 mm")),
    Sketcher.Constraint("DistanceY", 13, 3, 14, 3, Q("26 mm")),
    Sketcher.Constraint("DistanceX", 0, 3, 14, 3, Q("30 mm")),
    Sketcher.Constraint("DistanceX", 15, 3, 3, 3, Q("12 mm")),
    Sketcher.Constraint("DistanceX", 15, 3, 5, 3, Q("14 mm")),
    Sketcher.Constraint("DistanceX", 7, 3, 8, 3, Q("20 mm")),
    Sketcher.Constraint("DistanceX", 11, 3, 7, 3, Q("22 mm")),
    Sketcher.Constraint("DistanceY", 0, 3, 10, 3, Q("7.457 mm")),
    Sketcher.Constraint("DistanceX", -1, 1, 0, 3, Q("10.1327 mm")),
    Sketcher.Constraint("DistanceY", -1, 1, 0, 3, Q("81.6354 mm")),
])
pocket3 = doc.addObject("PartDesign::Pocket", "Pocket002")
body.addObject(pocket3)
pocket3.Profile = sketch4
pocket3.Length = 10
doc.recompute()

fillet = doc.addObject("PartDesign::Fillet", "Fillet")
body.addObject(fillet)
fillet.Base = (pocket3, edges_at(pocket3, [
    (3.5, -0.867, 141.212),
    (3.5, 70.133, 81.635),
    (3.5, 70.133, -43.365),
    (3.5, -0.867, -102.941),
]))
fillet.Radius = 10

# Sketch on XZ plane
sketch5 = doc.addObject("Sketcher::SketchObject", "Sketch004")
body.addObject(sketch5)
sketch5.AttachmentSupport = (doc.XZ_Plane, [""])
sketch5.MapMode = "FlatFace"
sketch5.AttachmentOffset = App.Placement(Vector(0, 0, 0.8673), App.Rotation())
sketch5.addGeometry([
    Part.Circle(Vector(3.5, 306.6354, 0), Vector(0, 0, 1), 2.1),
    Part.Circle(Vector(3.5, 276.6354, 0), Vector(0, 0, 1), 2.1),
    Part.Circle(Vector(4.2231, 166.6354, 0), Vector(0, 0, 1), 2.1),
], False)
sketch5.addConstraint([
    Sketcher.Constraint("Equal", 0, 1),
    Sketcher.Constraint("Equal", 1, 2),
    Sketcher.Constraint("Vertical", 0, 3, 1, 3),
    Sketcher.Constraint("Diameter", 0, Q("4.2 mm")),
    Sketcher.Constraint("DistanceX", -1, 1, 0, 3, Q("3.5 mm")),
    Sketcher.Constraint("DistanceY", 1, 3, 0, 3, Q("30 mm")),
    Sketcher.Constraint("DistanceY", 2, 3, 1, 3, Q("110 mm")),
    Sketcher.Constraint("DistanceX", -1, 1, 2, 3, Q("4.223 mm")),
    Sketcher.Constraint("DistanceY", -1, 1, 0, 3, Q("306.6354 mm")),
])
pocket4 = doc.addObject("PartDesign::Pocket", "Pocket003")
body.addObject(pocket4)
pocket4.Profile = sketch5
pocket4.Length = 10
pocket4.Reversed = True

# Sketch on XY plane
sketch6 = doc.addObject("Sketcher::SketchObject", "Sketch005")
body.addObject(sketch6)
sketch6.AttachmentSupport = (doc.XY_Plane, [""])
sketch6.MapMode = "FlatFace"
sketch6.AttachmentOffset = App.Placement(Vector(0, 0, 316.6354), App.Rotation())
sketch6.addGeometry([
    Part.LineSegment(Vector(0, -0.8673, 0), Vector(0, -64.8673, 0)),
    Part.LineSegment(Vector(0, -64.8673, 0), Vector(7, -64.8673, 0)),
    Part.LineSegment(Vector(7, -64.8673, 0), Vector(7, -0.8673, 0)),
    Part.LineSegment(Vector(7, -0.8673, 0), Vector(0, -0.8673, 0)),
], False)
sketch6.addConstraint([
    Sketcher.Constraint("Coincident", 0, 2, 1, 1),
    Sketcher.Constraint("Coincident", 1, 2, 2, 1),
    Sketcher.Constraint("Coincident", 2, 2, 3, 1),
    Sketcher.Constraint("Coincident", 3, 2, 0, 1),
    Sketcher.Constraint("Vertical", 0),
    Sketcher.Constraint("Horizontal", 1),
    Sketcher.Constraint("Vertical", 2),
    Sketcher.Constraint("Horizontal", 3),
    Sketcher.Constraint("PointOnObject", 0, 2, -2),
    Sketcher.Constraint("DistanceX", 1, 1, 1, 2, Q("7 mm")),
    Sketcher.Constraint("DistanceY", 0, 2, 0, 1, Q("64 mm")),
    Sketcher.Constraint("DistanceY", 0, 2, -1, 1, Q("64.8673 mm")),
])
pad2 = doc.addObject("PartDesign::Pad", "Pad001")
body.addObject(pad2)
pad2.Profile = sketch6
pad2.Length = 200

# Sketch on XY plane
sketch7 = doc.addObject("Sketcher::SketchObject", "Sketch006")
body.addObject(sketch7)
sketch7.AttachmentSupport = (doc.XY_Plane, [""])
sketch7.MapMode = "FlatFace"
sketch7.AttachmentOffset = App.Placement(Vector(0, 0, -133.3646), App.Rotation())
sketch7.addGeometry([
    Part.LineSegment(Vector(0, -0.8673, 0), Vector(7, -0.8673, 0)),
    Part.LineSegment(Vector(7, -0.8673, 0), Vector(7, -64.8673, 0)),
    Part.LineSegment(Vector(7, -64.8673, 0), Vector(0, -64.8673, 0)),
    Part.LineSegment(Vector(0, -64.8673, 0), Vector(0, -0.8673, 0)),
], False)
sketch7.addConstraint([
    Sketcher.Constraint("Coincident", 0, 2, 1, 1),
    Sketcher.Constraint("Coincident", 1, 2, 2, 1),
    Sketcher.Constraint("Coincident", 2, 2, 3, 1),
    Sketcher.Constraint("Coincident", 3, 2, 0, 1),
    Sketcher.Constraint("Horizontal", 0),
    Sketcher.Constraint("Vertical", 1),
    Sketcher.Constraint("Horizontal", 2),
    Sketcher.Constraint("Vertical", 3),
    Sketcher.Constraint("PointOnObject", 2, 2, -2),
    Sketcher.Constraint("DistanceX", 0, 1, 0, 2, Q("7 mm")),
    Sketcher.Constraint("DistanceY", 1, 2, 1, 1, Q("64 mm")),
    Sketcher.Constraint("DistanceY", 0, 2, -1, 1, Q("0.8673 mm")),
])
pad3 = doc.addObject("PartDesign::Pad", "Pad002")
body.addObject(pad3)
pad3.Profile = sketch7
pad3.Length = 200
pad3.Reversed = True

doc.recompute()
